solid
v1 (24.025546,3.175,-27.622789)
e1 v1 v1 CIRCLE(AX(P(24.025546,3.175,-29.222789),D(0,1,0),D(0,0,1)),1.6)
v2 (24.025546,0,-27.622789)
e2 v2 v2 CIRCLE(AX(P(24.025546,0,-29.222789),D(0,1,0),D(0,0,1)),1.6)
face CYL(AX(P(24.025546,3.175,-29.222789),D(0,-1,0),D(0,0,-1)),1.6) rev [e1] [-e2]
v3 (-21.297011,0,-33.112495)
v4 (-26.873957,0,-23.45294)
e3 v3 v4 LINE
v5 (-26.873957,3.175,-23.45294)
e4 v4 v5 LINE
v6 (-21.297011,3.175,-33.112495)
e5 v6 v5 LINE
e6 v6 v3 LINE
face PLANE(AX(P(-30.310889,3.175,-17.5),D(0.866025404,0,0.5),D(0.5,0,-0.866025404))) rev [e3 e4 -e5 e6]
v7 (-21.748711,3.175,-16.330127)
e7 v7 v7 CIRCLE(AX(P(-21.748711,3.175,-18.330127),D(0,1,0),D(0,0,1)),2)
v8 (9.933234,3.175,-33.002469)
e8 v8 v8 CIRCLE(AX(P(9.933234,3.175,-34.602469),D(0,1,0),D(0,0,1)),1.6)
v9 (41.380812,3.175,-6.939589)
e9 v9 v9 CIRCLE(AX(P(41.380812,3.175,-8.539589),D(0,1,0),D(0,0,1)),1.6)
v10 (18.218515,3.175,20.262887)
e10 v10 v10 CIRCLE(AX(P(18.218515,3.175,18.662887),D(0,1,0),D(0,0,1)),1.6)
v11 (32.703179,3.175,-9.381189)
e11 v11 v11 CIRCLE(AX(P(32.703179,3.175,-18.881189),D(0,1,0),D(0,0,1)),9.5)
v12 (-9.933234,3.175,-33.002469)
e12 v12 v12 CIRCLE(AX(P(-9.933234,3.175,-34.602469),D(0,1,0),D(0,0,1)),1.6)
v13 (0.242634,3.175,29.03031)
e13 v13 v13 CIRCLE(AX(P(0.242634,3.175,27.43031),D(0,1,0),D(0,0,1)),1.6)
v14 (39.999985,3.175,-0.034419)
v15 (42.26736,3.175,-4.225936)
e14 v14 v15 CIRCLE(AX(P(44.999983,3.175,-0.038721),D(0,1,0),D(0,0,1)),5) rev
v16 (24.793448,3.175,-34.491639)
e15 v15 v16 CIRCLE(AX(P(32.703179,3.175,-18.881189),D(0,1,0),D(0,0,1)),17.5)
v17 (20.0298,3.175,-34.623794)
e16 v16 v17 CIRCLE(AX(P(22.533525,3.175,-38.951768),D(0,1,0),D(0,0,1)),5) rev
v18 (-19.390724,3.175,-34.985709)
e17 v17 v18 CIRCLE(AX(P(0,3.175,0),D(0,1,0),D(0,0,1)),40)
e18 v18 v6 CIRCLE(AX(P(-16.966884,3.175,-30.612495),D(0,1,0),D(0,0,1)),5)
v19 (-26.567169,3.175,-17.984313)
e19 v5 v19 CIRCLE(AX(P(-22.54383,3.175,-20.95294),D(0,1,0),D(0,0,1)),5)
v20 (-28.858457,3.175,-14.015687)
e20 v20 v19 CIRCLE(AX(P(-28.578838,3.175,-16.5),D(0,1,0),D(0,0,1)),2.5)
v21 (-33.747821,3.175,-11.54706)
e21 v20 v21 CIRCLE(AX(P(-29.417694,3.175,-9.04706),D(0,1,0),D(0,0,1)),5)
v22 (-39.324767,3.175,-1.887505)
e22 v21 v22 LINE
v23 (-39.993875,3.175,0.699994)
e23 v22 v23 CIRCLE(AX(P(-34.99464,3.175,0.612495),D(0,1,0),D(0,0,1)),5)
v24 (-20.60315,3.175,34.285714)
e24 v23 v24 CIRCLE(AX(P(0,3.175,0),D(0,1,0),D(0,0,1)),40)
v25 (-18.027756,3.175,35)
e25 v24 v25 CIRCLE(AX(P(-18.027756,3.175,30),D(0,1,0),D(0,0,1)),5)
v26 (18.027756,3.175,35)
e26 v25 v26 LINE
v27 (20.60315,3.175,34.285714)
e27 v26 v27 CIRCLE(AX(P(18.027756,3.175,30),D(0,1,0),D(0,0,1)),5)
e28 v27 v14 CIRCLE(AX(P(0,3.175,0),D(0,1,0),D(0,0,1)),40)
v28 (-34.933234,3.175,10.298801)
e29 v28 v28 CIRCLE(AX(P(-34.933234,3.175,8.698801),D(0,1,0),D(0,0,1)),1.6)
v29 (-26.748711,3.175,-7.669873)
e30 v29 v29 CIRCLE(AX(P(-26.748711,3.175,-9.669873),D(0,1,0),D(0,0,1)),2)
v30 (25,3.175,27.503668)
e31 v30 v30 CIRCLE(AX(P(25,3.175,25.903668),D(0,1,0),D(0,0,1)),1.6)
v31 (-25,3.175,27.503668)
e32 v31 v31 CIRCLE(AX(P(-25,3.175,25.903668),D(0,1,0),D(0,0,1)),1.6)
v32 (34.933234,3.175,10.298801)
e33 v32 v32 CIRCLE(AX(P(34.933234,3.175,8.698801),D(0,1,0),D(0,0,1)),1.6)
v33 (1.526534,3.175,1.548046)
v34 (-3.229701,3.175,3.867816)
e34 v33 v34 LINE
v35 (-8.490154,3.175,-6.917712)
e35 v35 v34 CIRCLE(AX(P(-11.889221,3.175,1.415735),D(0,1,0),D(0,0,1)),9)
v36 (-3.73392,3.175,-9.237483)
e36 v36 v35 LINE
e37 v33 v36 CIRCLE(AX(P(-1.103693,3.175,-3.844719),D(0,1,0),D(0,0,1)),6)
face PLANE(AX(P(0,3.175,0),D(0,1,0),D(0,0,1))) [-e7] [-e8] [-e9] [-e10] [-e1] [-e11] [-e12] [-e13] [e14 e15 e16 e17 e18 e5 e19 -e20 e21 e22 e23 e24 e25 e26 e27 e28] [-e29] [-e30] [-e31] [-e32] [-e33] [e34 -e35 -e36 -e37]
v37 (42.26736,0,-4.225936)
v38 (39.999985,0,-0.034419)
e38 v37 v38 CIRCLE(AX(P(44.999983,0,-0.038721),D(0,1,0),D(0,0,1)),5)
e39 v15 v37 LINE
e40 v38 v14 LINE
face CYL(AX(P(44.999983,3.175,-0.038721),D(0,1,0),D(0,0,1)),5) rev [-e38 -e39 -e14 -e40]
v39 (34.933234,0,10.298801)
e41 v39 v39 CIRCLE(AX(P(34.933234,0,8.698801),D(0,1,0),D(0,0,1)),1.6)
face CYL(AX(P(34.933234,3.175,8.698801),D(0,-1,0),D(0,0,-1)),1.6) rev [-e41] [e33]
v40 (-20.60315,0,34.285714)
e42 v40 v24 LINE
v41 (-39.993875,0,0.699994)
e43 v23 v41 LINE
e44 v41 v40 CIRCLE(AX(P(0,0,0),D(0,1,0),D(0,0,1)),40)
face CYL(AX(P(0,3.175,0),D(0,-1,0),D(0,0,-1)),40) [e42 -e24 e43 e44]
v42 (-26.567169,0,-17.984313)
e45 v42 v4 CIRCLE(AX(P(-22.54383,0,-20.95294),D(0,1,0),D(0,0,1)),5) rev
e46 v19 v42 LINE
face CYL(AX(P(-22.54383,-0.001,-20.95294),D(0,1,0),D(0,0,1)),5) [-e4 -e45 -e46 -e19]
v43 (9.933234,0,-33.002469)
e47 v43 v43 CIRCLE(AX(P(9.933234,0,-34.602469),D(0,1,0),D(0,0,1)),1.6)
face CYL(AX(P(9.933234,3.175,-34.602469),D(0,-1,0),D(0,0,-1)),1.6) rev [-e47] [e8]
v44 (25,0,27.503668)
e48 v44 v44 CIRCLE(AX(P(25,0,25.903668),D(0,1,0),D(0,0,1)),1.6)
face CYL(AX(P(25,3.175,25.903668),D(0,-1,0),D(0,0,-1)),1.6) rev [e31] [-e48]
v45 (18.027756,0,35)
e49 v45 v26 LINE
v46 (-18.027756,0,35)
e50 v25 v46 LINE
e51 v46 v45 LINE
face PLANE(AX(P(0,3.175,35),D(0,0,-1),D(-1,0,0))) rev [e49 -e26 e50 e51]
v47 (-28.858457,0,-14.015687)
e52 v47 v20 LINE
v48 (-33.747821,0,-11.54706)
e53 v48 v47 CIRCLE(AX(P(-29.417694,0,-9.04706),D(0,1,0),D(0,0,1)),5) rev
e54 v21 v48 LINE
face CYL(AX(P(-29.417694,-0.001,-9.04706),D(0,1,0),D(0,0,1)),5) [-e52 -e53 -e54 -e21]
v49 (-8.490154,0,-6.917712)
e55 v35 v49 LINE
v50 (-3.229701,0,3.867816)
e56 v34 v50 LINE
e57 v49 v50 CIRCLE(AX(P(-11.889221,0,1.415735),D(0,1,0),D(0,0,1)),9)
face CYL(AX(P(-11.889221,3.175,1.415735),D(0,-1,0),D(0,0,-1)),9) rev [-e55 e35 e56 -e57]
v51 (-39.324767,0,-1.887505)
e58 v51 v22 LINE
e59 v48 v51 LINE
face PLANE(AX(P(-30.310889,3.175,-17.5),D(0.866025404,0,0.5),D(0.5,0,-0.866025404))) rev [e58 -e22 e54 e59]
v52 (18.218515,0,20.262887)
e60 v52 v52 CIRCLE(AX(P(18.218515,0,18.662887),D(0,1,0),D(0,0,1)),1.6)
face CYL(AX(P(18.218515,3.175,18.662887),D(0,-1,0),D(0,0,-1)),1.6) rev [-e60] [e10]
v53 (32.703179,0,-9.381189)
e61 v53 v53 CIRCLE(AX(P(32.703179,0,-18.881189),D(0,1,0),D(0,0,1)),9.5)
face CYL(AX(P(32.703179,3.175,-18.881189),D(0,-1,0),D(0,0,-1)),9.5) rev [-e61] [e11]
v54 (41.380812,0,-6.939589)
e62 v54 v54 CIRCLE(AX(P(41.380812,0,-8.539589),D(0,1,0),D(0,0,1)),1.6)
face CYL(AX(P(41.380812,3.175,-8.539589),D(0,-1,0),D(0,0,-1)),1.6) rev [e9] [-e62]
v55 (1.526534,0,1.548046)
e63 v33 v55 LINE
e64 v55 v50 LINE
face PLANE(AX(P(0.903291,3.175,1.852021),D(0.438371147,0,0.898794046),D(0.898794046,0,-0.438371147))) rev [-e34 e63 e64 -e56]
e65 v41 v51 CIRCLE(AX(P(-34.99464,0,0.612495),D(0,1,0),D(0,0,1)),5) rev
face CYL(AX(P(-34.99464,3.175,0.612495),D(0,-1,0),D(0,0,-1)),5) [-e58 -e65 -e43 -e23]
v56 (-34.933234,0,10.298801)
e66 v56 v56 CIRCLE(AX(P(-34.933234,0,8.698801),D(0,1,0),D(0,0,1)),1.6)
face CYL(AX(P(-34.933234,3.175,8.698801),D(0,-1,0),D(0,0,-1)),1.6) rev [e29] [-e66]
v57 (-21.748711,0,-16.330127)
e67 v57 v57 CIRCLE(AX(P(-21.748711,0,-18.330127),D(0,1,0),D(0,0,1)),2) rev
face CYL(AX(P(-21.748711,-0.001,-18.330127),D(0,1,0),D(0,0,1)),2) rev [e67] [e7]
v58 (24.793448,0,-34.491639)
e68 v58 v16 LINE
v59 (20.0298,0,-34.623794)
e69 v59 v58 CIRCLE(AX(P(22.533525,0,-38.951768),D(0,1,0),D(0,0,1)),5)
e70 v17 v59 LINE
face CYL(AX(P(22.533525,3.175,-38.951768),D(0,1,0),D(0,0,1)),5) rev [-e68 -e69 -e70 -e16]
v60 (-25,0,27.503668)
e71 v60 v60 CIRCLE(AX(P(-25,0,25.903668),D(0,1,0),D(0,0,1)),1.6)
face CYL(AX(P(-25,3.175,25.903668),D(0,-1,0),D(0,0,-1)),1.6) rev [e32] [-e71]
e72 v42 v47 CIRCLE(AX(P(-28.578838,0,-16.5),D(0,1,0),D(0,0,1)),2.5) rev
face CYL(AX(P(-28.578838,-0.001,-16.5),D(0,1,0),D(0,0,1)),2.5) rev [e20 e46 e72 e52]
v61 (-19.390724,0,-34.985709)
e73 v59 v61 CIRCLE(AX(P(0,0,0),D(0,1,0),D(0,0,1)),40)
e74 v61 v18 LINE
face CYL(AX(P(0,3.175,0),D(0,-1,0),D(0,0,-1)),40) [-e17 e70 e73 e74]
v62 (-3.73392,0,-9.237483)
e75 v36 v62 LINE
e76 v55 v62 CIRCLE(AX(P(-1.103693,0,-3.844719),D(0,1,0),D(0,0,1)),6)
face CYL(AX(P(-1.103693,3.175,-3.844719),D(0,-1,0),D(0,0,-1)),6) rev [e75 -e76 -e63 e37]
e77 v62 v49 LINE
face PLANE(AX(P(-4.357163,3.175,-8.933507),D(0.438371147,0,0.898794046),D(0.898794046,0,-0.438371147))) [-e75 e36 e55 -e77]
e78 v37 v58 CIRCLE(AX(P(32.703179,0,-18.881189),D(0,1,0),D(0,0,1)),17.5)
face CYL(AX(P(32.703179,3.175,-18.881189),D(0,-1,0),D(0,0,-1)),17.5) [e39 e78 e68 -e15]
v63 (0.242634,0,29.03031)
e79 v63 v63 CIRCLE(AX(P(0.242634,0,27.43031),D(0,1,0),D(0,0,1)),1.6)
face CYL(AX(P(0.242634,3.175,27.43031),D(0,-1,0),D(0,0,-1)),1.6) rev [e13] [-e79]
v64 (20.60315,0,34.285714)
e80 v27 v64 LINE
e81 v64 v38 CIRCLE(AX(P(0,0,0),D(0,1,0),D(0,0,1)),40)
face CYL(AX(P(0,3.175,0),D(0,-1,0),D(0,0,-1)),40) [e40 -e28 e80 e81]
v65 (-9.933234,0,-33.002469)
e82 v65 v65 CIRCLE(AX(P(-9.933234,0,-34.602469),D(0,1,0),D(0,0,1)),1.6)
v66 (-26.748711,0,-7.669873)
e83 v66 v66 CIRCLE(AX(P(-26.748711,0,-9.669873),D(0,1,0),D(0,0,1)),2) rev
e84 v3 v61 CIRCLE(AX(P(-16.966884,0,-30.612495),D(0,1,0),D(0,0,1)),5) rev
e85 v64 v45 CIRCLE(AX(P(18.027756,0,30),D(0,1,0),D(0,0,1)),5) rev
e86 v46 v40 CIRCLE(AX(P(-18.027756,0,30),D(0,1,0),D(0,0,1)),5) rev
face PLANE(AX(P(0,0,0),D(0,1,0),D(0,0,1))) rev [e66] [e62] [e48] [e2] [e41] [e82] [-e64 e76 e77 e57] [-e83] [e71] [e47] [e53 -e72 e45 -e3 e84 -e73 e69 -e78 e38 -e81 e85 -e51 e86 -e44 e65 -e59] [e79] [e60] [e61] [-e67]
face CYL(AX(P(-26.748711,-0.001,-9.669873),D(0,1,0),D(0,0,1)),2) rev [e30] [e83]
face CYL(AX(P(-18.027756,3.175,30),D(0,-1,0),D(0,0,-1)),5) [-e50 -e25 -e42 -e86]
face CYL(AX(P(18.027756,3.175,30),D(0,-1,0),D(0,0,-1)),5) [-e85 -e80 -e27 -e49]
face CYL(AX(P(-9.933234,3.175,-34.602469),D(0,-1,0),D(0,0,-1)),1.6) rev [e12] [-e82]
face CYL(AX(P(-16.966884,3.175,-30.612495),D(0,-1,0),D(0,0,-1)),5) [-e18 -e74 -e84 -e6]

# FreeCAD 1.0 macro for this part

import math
import FreeCAD as App
import Part
import Sketcher
from FreeCAD import Vector
Q = App.Units.Quantity


def edges_at(feature, points):
    """Names of the edges that pass closest to the given points."""
    edges = feature.Shape.Edges
    near = lambda p: min(range(len(edges)), key=lambda i: edges[i].distToShape(Part.Vertex(*p))[0])
    return sorted({f"Edge{near(p) + 1}" for p in points})

doc = App.newDocument("Part")
params = doc.addObject("Spreadsheet::Sheet", "Params")
for row, (alias, value) in enumerate([
    ("sketch1_diameter", "19 mm"),
    ("sketch1_radius", "40 mm"),
    ("sketch1_radius2", "6 mm"),
    ("sketch1_radius3", "9 mm"),
    ("sketch1_diameter2", "3.2 mm"),
    ("pad1_length", "3.175 mm"),
    ("fillet_radius", "5 mm"),
    ("sketch2_diameter", "4 mm"),
    ("sketch3_diameter", "4 mm"),
    ("sketch4_radius", "2.5 mm"),
    ("sketch4_length", "2 mm"),
    ("fillet2_radius", "5 mm"),
], start=1):
    params.set(f"A{row}", alias)
    params.set(f"B{row}", "=" + value)
    params.setAlias(f"B{row}", alias)

body = doc.addObject("PartDesign::Body", "Body")

# Sketch on XZ plane
sketch1 = body.newObject("Sketcher::SketchObject", "Sketch")
sketch1.AttachmentSupport = (doc.getObject("XZ_Plane"), [""])
sketch1.MapMode = "FlatFace"
sketch1.addGeometry(Part.LineSegment(Vector(-20.6, -34.3, 0), Vector(-40, -0.7, 0)), False)
sketch1.addGeometry(Part.ArcOfCircle(Part.Circle(Vector(0, 0, 0), Vector(0, 0, 1), 40), math.radians(119), math.radians(181)), False)
sketch1.addGeometry(Part.LineSegment(Vector(-19.4, 35, 0), Vector(19.4, 35, 0)), False)
sketch1.addGeometry(Part.ArcOfCircle(Part.Circle(Vector(0, 0, 0), Vector(0, 0, 1), 40), math.radians(-4), math.radians(61)), False)
sketch1.addGeometry(Part.ArcOfCircle(Part.Circle(Vector(32.7, -18.9, 0), Vector(0, 0, 1), 17.5), math.radians(-126), math.radians(66)), False)
sketch1.addGeometry(Part.ArcOfCircle(Part.Circle(Vector(0, 0, 0), Vector(0, 0, 1), 40), math.radians(-121), math.radians(-56)), False)
sketch1.addGeometry(Part.Circle(Vector(-25, 25.9, 0), Vector(0, 0, 1), 1.6), False)
sketch1.addGeometry(Part.Circle(Vector(0.2, 27.4, 0), Vector(0, 0, 1), 1.6), False)
sketch1.addGeometry(Part.Circle(Vector(-34.9, 8.7, 0), Vector(0, 0, 1), 1.6), False)
sketch1.addGeometry(Part.LineSegment(Vector(-8.5, -6.9, 0), Vector(-3.7, -9.2, 0)), False)
sketch1.addGeometry(Part.ArcOfCircle(Part.Circle(Vector(-1.1, -3.8, 0), Vector(0, 0, 1), 6), math.radians(-116), math.radians(64)), False)
sketch1.addGeometry(Part.LineSegment(Vector(1.5, 1.5, 0), Vector(-3.2, 3.9, 0)), False)
sketch1.addGeometry(Part.ArcOfCircle(Part.Circle(Vector(-11.9, 1.4, 0), Vector(0, 0, 1), 9), math.radians(16), math.radians(292)), False)
sketch1.addGeometry(Part.Circle(Vector(18.2, 18.7, 0), Vector(0, 0, 1), 1.6), False)
sketch1.addGeometry(Part.Circle(Vector(25, 25.9, 0), Vector(0, 0, 1), 1.6), False)
sketch1.addGeometry(Part.Circle(Vector(34.9, 8.7, 0), Vector(0, 0, 1), 1.6), False)
sketch1.addGeometry(Part.Circle(Vector(-9.9, -34.6, 0), Vector(0, 0, 1), 1.6), False)
sketch1.addGeometry(Part.Circle(Vector(41.4, -8.5, 0), Vector(0, 0, 1), 1.6), False)
sketch1.addGeometry(Part.Circle(Vector(32.7, -18.9, 0), Vector(0, 0, 1), 9.5), False)
sketch1.addGeometry(Part.Circle(Vector(9.9, -34.6, 0), Vector(0, 0, 1), 1.6), False)
sketch1.addGeometry(Part.Circle(Vector(24, -29.2, 0), Vector(0, 0, 1), 1.6), False)
sketch1.addConstraint(Sketcher.Constraint("Coincident", 0, 2, 1, 2))
sketch1.addConstraint(Sketcher.Constraint("Coincident", 1, 1, 2, 1))
sketch1.addConstraint(Sketcher.Constraint("Coincident", 2, 2, 3, 2))
sketch1.addConstraint(Sketcher.Constraint("Coincident", 3, 1, 4, 2))
sketch1.addConstraint(Sketcher.Constraint("Coincident", 4, 1, 5, 2))
sketch1.addConstraint(Sketcher.Constraint("Coincident", 5, 1, 0, 1))
sketch1.addConstraint(Sketcher.Constraint("Tangent", 9, 2, 10, 1))
sketch1.addConstraint(Sketcher.Constraint("Tangent", 10, 2, 11, 1))
sketch1.addConstraint(Sketcher.Constraint("Coincident", 11, 2, 12, 1))
sketch1.addConstraint(Sketcher.Constraint("Coincident", 12, 2, 9, 1))
sketch1.addConstraint(Sketcher.Constraint("Horizontal", 2))
sketch1.addConstraint(Sketcher.Constraint("Coincident", 1, 3, -1, 1))
sketch1.addConstraint(Sketcher.Constraint("Coincident", 3, 3, -1, 1))
sketch1.addConstraint(Sketcher.Constraint("Coincident", 5, 3, -1, 1))
sketch1.addConstraint(Sketcher.Constraint("Coincident", 18, 3, 4, 3))
sketch1.addConstraint(Sketcher.Constraint("Equal", 1, 3))
sketch1.addConstraint(Sketcher.Constraint("Equal", 3, 5))
sketch1.addConstraint(Sketcher.Constraint("Equal", 6, 7))
sketch1.addConstraint(Sketcher.Constraint("Equal", 7, 8))
sketch1.addConstraint(Sketcher.Constraint("Equal", 8, 13))
sketch1.addConstraint(Sketcher.Constraint("Equal", 13, 14))
sketch1.addConstraint(Sketcher.Constraint("Equal", 14, 15))
sketch1.addConstraint(Sketcher.Constraint("Equal", 15, 16))
sketch1.addConstraint(Sketcher.Constraint("Equal", 16, 17))
sketch1.addConstraint(Sketcher.Constraint("Equal", 17, 19))
sketch1.addConstraint(Sketcher.Constraint("Equal", 19, 20))
sketch1.addConstraint(Sketcher.Constraint("Symmetric", 6, 3, 14, 3, -2))
sketch1.addConstraint(Sketcher.Constraint("Symmetric", 8, 3, 15, 3, -2))
sketch1.addConstraint(Sketcher.Constraint("Symmetric", 16, 3, 19, 3, -2))
sketch1.addConstraint(Sketcher.Constraint("Parallel", 9, 11))
sketch1.addConstraint(Sketcher.Constraint("Equal", 9, 11))
sketch1.addConstraint(Sketcher.Constraint("Diameter", 18, Q("19 mm")))
sketch1.addConstraint(Sketcher.Constraint("Radius", 1, Q("40 mm")))
sketch1.addConstraint(Sketcher.Constraint("Radius", 10, Q("6 mm")))
sketch1.addConstraint(Sketcher.Constraint("Radius", 12, Q("9 mm")))
sketch1.addConstraint(Sketcher.Constraint("Diameter", 6, Q("3.2 mm")))
sketch1.addConstraint(Sketcher.Constraint("Radius", 4, Q("17.5 mm")))
sketch1.addConstraint(Sketcher.Constraint("Angle", 0, Q("120 deg")))
sketch1.addConstraint(Sketcher.Constraint("Angle", 9, Q("-26 deg")))
sketch1.addConstraint(Sketcher.Constraint("DistanceX", 6, 3, -1, 1, Q("25 mm")))
sketch1.addConstraint(Sketcher.Constraint("DistanceY", -1, 1, 1, 1, Q("35 mm")))
sketch1.addConstraint(Sketcher.Constraint("DistanceY", -1, 1, 8, 3, Q("8.698801 mm")))
sketch1.addConstraint(Sketcher.Constraint("DistanceX", 11, 2, -1, 1, Q("3.229701 mm")))
sketch1.addConstraint(Sketcher.Constraint("DistanceY", 4, 3, 7, 3, Q("46.311499 mm")))
sketch1.addConstraint(Sketcher.Constraint("DistanceY", 4, 3, 17, 3, Q("10.3416 mm")))
sketch1.addConstraint(Sketcher.Constraint("DistanceY", 20, 3, 4, 3, Q("10.3416 mm")))
sketch1.addConstraint(Sketcher.Constraint("DistanceX", 12, 3, 9, 2, Q("8.155302 mm")))
sketch1.addConstraint(Sketcher.Constraint("DistanceX", -1, 1, 4, 3, Q("32.703179 mm")))
sketch1.addConstraint(Sketcher.Constraint("DistanceY", 4, 3, -1, 1, Q("18.881189 mm")))
sketch1.addConstraint(Sketcher.Constraint("DistanceY", 10, 3, -1, 1, Q("3.844719 mm")))
sketch1.addConstraint(Sketcher.Constraint("DistanceY", 16, 3, -1, 1, Q("34.602469 mm")))
sketch1.addConstraint(Sketcher.Constraint("DistanceX", -1, 1, 17, 3, Q("41.380812 mm")))
sketch1.addConstraint(Sketcher.Constraint("DistanceY", 0, 2, -1, 1, Q("0.72949 mm")))
sketch1.addConstraint(Sketcher.Constraint("DistanceY", 6, 3, 7, 3, Q("1.526642 mm")))
sketch1.addConstraint(Sketcher.Constraint("DistanceX", 8, 3, 10, 3, Q("33.829542 mm")))
sketch1.addConstraint(Sketcher.Constraint("DistanceX", 7, 3, 13, 3, Q("17.975881 mm")))
sketch1.addConstraint(Sketcher.Constraint("DistanceY", 13, 3, 14, 3, Q("7.240781 mm")))
sketch1.addConstraint(Sketcher.Constraint("DistanceX", 13, 3, 15, 3, Q("16.71472 mm")))
sketch1.addConstraint(Sketcher.Constraint("DistanceX", 16, 3, 10, 3, Q("8.829542 mm")))
sketch1.addConstraint(Sketcher.Constraint("DistanceX", 19, 3, 20, 3, Q("14.092312 mm")))
sketch1.setExpression("Constraints[31]", "Params.sketch1_diameter")
sketch1.setExpression("Constraints[32]", "Params.sketch1_radius")
sketch1.setExpression("Constraints[33]", "Params.sketch1_radius2")
sketch1.setExpression("Constraints[34]", "Params.sketch1_radius3")
sketch1.setExpression("Constraints[35]", "Params.sketch1_diameter2")
pad1 = body.newObject("PartDesign::Pad", "Pad")
pad1.Profile = sketch1
pad1.setExpression("Length", "Params.pad1_length")
pad1.Reversed = True
doc.recompute()

fillet = body.newObject("PartDesign::Fillet", "Fillet")
fillet.Base = (pad1, edges_at(pad1, [(39.893, 1.587, -2.926), (22.481, 1.587, -33.085)]))
fillet.setExpression("Radius", "Params.fillet_radius")

# Sketch on XZ plane
sketch2 = body.newObject("Sketcher::SketchObject", "Sketch001")
sketch2.AttachmentSupport = (doc.getObject("XZ_Plane"), [""])
sketch2.MapMode = "FlatFace"
sketch2.AttachmentOffset = App.Placement(Vector(0, 0, -3.175), App.Rotation())
sketch2.addGeometry(Part.Circle(Vector(-26.7, -9.7, 0), Vector(0, 0, 1), 2), False)
sketch2.addConstraint(Sketcher.Constraint("Diameter", 0, Q("4 mm")))
sketch2.addConstraint(Sketcher.Constraint("DistanceX", 0, 3, -1, 1, Q("26.748711 mm")))
sketch2.addConstraint(Sketcher.Constraint("DistanceY", 0, 3, -1, 1, Q("9.669873 mm")))
sketch2.setExpression("Constraints[0]", "Params.sketch2_diameter")
pocket1 = body.newObject("PartDesign::Pocket", "Pocket")
pocket1.Profile = sketch2
pocket1.Type = "UpToFirst"
pocket1.Reversed = True

# Sketch on XZ plane
sketch3 = body.newObject("Sketcher::SketchObject", "Sketch002")
sketch3.AttachmentSupport = (doc.getObject("XZ_Plane"), [""])
sketch3.MapMode = "FlatFace"
sketch3.AttachmentOffset = App.Placement(Vector(0, 0, -3.175), App.Rotation())
sketch3.addGeometry(Part.Circle(Vector(-21.7, -18.3, 0), Vector(0, 0, 1), 2), False)
sketch3.addConstraint(Sketcher.Constraint("Diameter", 0, Q("4 mm")))
sketch3.addConstraint(Sketcher.Constraint("DistanceX", 0, 3, -1, 1, Q("21.748711 mm")))
sketch3.addConstraint(Sketcher.Constraint("DistanceY", 0, 3, -1, 1, Q("18.330127 mm")))
sketch3.setExpression("Constraints[0]", "Params.sketch3_diameter")
pocket2 = body.newObject("PartDesign::Pocket", "Pocket001")
pocket2.Profile = sketch3
pocket2.Type = "UpToFirst"
pocket2.Reversed = True

# Sketch on XZ plane
sketch4 = body.newObject("Sketcher::SketchObject", "Sketch003")
sketch4.AttachmentSupport = (doc.getObject("XZ_Plane"), [""])
sketch4.MapMode = "FlatFace"
sketch4.AttachmentOffset = App.Placement(Vector(0, 0, -3.175), App.Rotation())
sketch4.addGeometry(Part.LineSegment(Vector(-27.3, -18.7, 0), Vector(-29.1, -19.7, 0)), False)
sketch4.addGeometry(Part.ArcOfCircle(Part.Circle(Vector(-30.3, -17.5, 0), Vector(0, 0, 1), 2.5), math.radians(120), math.radians(300)), False)
sketch4.addGeometry(Part.LineSegment(Vector(-31.6, -15.3, 0), Vector(-29.8, -14.3, 0)), False)
sketch4.addGeometry(Part.ArcOfCircle(Part.Circle(Vector(-28.6, -16.5, 0), Vector(0, 0, 1), 2.5), math.radians(-60), math.radians(120)), False)
sketch4.addConstraint(Sketcher.Constraint("Tangent", 0, 2, 1, 2))
sketch4.addConstraint(Sketcher.Constraint("Tangent", 1, 1, 2, 1))
sketch4.addConstraint(Sketcher.Constraint("Tangent", 2, 2, 3, 2))
sketch4.addConstraint(Sketcher.Constraint("Tangent", 3, 1, 0, 1))
sketch4.addConstraint(Sketcher.Constraint("Equal", 1, 3))
sketch4.addConstraint(Sketcher.Constraint("Radius", 1, Q("2.5 mm")))
sketch4.addConstraint(Sketcher.Constraint("Angle", 0, Q("-150 deg")))
sketch4.addConstraint(Sketcher.Constraint("Distance", 0, Q("2 mm")))
sketch4.addConstraint(Sketcher.Constraint("DistanceY", 1, 3, -1, 1, Q("17.5 mm")))
sketch4.addConstraint(Sketcher.Constraint("DistanceX", 1, 3, -1, 1, Q("30.310889 mm")))
sketch4.setExpression("Constraints[5]", "Params.sketch4_radius")
sketch4.setExpression("Constraints[7]", "Params.sketch4_length")
pocket3 = body.newObject("PartDesign::Pocket", "Pocket002")
pocket3.Profile = sketch4
pocket3.Type = "UpToFirst"
pocket3.Reversed = True
doc.recompute()

fillet2 = body.newObject("PartDesign::Fillet", "Fillet001")
fillet2.Base = (pocket3, edges_at(pocket3, [
    (-31.561, 1.587, -15.335),
    (-29.061, 1.587, -19.665),
    (19.365, 1.587, 35),
    (-19.365, 1.587, 35),
    (-39.993, 1.587, -0.729),
    (-20.628, 1.587, -34.271),
]))
fillet2.setExpression("Radius", "Params.fillet2_radius")

doc.recompute()
